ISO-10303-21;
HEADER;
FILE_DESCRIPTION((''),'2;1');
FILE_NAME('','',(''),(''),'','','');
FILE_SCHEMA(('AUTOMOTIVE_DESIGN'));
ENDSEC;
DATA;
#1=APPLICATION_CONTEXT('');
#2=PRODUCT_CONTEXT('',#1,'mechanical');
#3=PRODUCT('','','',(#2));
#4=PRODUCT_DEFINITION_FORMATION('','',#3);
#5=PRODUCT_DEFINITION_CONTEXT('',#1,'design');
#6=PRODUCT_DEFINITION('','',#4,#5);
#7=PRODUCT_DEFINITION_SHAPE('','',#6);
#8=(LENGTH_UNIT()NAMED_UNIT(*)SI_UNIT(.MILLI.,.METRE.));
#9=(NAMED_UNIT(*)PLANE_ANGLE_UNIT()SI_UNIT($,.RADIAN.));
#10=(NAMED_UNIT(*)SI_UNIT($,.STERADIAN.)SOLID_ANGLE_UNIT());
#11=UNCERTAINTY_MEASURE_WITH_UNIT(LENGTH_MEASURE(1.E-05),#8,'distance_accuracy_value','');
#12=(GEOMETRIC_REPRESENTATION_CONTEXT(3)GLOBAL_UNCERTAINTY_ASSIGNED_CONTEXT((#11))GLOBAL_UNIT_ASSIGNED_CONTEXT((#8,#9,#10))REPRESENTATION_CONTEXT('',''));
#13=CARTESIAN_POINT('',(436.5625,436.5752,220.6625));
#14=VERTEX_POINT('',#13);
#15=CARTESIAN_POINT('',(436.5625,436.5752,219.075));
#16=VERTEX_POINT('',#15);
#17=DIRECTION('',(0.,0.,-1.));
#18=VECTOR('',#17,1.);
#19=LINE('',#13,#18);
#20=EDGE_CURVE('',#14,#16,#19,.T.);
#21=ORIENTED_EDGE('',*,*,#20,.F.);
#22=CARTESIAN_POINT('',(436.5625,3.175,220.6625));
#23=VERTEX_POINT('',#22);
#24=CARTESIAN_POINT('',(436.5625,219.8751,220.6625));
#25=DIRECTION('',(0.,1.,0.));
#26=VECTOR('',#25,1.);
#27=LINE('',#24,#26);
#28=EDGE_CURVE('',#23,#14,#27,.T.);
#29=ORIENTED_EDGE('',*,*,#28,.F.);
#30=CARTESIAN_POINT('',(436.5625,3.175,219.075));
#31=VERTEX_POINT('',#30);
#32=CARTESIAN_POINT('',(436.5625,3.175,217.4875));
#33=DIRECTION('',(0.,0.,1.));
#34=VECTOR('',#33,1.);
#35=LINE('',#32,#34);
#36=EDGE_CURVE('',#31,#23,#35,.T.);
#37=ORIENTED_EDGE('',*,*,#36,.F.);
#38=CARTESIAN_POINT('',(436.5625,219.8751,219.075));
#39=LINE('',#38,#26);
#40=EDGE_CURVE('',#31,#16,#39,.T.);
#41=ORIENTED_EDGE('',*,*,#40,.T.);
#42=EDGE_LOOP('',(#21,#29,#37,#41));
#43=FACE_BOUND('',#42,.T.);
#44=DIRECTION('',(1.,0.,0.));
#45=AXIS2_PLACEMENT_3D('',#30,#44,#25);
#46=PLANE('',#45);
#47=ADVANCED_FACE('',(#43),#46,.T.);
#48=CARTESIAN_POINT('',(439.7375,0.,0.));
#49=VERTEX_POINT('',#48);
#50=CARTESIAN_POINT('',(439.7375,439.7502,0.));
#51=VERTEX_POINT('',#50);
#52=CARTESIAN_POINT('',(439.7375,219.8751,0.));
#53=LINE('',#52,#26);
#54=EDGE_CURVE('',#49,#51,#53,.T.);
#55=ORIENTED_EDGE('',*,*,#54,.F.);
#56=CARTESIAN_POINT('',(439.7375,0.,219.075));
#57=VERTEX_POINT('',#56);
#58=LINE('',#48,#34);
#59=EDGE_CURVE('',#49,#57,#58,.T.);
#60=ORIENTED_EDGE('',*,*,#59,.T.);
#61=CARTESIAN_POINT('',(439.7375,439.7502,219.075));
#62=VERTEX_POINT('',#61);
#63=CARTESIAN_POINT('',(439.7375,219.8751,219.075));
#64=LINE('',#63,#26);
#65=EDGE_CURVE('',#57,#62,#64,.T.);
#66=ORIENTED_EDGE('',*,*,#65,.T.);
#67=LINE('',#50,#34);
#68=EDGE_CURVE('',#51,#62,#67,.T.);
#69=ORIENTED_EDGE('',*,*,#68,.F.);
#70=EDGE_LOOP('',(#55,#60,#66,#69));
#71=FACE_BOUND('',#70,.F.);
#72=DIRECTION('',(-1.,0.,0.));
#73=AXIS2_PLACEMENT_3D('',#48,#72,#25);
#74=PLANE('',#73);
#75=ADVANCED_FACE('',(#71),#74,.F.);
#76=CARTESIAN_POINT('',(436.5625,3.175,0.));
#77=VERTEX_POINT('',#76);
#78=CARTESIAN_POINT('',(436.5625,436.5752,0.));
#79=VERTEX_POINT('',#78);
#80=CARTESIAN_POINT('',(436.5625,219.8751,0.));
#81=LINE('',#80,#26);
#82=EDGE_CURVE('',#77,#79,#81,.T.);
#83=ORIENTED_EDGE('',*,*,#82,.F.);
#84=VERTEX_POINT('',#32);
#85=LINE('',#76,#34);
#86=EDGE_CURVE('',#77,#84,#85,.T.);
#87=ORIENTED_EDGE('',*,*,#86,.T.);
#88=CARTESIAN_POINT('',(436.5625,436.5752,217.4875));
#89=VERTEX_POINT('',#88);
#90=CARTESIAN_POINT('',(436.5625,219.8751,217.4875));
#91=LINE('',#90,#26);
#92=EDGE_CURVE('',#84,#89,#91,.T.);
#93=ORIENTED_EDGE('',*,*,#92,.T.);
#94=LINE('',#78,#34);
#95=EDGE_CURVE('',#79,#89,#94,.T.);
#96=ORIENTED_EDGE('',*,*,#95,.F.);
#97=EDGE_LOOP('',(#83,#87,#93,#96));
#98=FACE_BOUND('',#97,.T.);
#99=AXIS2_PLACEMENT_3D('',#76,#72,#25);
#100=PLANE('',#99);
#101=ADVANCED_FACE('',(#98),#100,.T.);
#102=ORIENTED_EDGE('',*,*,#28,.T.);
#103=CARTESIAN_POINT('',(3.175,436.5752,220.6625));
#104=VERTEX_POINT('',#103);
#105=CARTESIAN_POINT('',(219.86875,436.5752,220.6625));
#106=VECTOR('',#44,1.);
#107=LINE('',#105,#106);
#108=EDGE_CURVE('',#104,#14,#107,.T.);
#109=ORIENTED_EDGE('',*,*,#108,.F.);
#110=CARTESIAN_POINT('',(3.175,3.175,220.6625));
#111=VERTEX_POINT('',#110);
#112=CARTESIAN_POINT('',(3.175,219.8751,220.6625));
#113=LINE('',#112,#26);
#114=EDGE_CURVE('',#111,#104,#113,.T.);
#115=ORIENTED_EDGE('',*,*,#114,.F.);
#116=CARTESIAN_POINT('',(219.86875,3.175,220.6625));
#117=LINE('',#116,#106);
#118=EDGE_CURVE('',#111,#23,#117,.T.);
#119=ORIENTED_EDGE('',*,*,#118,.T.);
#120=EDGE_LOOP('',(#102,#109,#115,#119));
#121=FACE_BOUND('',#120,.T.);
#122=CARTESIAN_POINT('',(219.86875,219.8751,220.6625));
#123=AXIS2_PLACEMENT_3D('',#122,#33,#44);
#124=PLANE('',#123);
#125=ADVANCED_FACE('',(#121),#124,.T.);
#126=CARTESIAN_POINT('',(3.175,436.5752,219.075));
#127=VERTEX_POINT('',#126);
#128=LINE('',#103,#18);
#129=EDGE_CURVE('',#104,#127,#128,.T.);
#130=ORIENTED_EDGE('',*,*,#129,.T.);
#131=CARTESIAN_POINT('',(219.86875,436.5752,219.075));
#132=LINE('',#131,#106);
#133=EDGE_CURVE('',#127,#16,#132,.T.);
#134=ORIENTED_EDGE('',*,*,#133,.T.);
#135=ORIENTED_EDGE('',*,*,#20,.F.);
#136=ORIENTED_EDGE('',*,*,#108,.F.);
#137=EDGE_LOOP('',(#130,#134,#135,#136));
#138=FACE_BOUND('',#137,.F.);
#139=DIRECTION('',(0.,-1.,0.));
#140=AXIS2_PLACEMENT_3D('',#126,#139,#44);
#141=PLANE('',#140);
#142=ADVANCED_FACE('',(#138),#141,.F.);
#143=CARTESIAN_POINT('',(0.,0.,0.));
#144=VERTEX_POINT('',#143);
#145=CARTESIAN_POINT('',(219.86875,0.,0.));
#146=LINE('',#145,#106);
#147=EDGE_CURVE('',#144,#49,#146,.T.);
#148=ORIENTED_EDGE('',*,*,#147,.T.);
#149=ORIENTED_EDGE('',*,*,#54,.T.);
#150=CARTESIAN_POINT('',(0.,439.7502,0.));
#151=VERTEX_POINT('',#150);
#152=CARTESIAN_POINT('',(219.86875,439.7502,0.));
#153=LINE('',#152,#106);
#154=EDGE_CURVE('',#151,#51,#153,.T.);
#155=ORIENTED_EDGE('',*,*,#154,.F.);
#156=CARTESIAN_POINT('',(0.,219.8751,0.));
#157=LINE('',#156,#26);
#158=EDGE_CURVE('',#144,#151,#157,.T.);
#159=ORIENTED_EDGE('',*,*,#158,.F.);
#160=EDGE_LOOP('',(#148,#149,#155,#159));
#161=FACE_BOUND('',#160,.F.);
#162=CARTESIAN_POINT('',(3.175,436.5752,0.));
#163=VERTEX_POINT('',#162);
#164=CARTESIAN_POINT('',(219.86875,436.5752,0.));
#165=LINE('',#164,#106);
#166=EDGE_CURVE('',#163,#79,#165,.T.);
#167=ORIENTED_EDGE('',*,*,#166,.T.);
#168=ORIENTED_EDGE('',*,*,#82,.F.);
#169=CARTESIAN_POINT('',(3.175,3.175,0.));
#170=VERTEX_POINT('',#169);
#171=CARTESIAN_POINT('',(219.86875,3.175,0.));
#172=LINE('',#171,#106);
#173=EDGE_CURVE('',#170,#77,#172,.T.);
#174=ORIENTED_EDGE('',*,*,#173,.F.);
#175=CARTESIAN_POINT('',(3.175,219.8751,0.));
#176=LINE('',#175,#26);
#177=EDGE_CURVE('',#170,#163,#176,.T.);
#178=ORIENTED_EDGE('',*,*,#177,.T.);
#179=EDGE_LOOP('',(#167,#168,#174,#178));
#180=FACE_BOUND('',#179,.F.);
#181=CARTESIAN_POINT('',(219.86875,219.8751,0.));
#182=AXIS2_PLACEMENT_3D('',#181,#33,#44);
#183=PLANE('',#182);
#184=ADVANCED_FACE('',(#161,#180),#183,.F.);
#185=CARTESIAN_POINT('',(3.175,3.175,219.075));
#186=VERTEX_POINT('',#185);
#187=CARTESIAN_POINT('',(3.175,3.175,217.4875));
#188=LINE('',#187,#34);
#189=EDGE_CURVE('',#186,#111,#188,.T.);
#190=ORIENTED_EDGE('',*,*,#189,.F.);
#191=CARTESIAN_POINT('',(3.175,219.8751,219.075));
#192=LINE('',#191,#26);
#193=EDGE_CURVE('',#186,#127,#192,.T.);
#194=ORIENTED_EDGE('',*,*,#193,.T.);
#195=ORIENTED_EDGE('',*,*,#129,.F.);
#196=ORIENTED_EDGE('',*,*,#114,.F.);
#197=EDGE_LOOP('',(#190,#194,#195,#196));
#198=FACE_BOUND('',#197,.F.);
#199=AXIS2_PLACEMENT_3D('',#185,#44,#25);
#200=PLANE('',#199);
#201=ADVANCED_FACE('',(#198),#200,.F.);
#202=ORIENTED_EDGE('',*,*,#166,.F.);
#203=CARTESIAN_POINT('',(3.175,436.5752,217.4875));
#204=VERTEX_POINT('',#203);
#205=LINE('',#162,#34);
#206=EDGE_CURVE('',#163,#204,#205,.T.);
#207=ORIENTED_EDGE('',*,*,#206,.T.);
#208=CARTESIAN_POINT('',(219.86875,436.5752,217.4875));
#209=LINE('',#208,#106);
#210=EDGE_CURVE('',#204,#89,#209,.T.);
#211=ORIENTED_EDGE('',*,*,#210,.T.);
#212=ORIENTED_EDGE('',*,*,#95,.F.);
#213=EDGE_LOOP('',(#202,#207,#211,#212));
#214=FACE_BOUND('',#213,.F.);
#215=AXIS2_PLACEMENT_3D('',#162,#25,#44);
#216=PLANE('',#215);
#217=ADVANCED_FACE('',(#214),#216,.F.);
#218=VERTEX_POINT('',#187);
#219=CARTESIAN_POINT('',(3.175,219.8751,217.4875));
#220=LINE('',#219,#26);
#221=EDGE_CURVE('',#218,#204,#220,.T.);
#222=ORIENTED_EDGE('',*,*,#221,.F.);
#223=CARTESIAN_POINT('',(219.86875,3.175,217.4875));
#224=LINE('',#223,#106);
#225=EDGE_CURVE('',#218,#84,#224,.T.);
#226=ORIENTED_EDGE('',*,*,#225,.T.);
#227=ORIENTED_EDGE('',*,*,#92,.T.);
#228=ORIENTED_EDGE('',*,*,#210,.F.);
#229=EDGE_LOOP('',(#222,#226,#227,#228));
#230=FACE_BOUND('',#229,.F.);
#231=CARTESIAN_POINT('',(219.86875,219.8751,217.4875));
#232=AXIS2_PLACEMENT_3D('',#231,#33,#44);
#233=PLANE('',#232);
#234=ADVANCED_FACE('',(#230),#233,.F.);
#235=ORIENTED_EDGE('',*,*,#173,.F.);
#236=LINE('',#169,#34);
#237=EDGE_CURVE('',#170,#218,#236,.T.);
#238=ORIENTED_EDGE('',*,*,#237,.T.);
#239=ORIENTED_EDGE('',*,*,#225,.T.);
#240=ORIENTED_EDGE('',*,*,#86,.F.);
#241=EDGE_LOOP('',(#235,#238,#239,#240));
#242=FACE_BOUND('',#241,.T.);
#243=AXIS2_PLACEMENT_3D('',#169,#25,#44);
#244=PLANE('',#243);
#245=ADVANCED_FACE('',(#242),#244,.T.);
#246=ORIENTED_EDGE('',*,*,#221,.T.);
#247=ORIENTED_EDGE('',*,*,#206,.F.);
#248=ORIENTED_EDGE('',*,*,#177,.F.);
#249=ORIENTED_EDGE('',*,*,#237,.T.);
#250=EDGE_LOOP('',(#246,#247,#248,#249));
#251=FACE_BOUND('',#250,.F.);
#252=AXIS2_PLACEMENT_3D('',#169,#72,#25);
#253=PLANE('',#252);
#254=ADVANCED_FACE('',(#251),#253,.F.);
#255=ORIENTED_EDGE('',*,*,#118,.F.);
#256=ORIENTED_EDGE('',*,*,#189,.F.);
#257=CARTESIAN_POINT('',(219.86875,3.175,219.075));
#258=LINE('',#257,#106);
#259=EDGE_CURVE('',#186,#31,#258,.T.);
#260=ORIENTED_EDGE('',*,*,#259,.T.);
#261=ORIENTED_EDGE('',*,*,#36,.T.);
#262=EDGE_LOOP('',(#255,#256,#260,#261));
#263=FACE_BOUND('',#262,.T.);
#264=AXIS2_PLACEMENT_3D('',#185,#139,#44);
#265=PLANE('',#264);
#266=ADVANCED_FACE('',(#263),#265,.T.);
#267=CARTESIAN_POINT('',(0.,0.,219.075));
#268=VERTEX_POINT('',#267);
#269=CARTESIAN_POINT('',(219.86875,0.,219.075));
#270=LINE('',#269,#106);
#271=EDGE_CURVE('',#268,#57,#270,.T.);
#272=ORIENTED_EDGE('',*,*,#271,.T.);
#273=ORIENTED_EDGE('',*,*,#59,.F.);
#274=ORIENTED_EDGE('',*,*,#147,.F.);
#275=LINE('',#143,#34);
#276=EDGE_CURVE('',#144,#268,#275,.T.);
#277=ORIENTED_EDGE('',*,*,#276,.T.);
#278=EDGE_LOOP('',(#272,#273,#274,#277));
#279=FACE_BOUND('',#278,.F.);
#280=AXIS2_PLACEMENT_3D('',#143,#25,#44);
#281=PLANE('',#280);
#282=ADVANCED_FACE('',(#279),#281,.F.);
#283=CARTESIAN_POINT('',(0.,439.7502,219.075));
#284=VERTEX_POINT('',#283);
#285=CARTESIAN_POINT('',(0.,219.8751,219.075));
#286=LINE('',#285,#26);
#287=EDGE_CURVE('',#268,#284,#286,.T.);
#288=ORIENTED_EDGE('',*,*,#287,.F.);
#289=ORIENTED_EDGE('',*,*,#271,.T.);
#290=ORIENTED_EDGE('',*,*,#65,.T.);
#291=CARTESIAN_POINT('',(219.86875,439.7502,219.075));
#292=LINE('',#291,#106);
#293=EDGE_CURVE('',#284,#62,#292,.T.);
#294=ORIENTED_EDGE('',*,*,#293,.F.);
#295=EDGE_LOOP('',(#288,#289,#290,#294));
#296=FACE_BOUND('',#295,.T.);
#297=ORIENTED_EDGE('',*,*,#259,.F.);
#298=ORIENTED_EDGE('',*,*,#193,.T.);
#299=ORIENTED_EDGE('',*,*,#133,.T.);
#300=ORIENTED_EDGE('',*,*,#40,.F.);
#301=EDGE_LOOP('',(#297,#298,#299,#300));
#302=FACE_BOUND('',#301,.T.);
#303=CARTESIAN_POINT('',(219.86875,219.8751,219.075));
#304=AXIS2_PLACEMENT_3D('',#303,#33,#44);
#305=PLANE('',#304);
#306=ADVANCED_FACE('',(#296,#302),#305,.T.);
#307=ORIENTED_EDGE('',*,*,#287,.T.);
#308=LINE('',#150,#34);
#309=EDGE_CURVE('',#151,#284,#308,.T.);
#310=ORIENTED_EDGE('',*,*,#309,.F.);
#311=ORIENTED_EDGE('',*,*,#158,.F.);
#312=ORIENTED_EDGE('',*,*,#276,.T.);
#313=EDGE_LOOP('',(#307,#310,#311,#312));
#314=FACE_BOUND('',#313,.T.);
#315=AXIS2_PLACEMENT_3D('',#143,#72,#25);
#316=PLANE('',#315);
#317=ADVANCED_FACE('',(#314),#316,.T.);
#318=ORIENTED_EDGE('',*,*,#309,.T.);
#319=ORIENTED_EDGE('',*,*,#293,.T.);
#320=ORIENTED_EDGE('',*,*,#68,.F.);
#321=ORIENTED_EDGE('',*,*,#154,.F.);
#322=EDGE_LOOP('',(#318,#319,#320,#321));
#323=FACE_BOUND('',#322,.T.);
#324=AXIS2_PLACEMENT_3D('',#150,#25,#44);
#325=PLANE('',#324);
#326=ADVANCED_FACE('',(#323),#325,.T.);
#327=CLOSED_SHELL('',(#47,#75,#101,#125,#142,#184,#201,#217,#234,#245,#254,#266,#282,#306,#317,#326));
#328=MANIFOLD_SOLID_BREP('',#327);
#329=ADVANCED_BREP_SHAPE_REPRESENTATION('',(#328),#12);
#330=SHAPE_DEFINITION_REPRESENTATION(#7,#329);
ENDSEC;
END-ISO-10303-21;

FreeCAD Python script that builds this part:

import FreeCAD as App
import Part
import Sketcher
Q = App.Units.Quantity


def add_polygon(sketch, points):
    """Adds a closed chain of lines whose ends are joined by coincident constraints."""
    first, n = sketch.GeometryCount, len(points)
    for a, b in zip(points, points[1:] + points[:1]):
        sketch.addGeometry(Part.LineSegment(App.Vector(*a, 0), App.Vector(*b, 0)), False)
    for i in range(n):
        sketch.addConstraint(Sketcher.Constraint("Coincident", first + i, 2, first + (i + 1) % n, 1))

doc = App.newDocument("Part")
body = doc.addObject("PartDesign::Body", "Body")

# Sketch on XY plane
sketch1 = body.newObject("Sketcher::SketchObject", "Sketch")
sketch1.AttachmentSupport = (doc.getObject("XY_Plane"), [""])
sketch1.MapMode = "FlatFace"
add_polygon(sketch1, [(0, 440), (0, 0), (440, 0), (440, 440)])  # lines 0-3
add_polygon(sketch1, [(437, 3), (3, 3), (3, 437), (437, 437)])  # lines 4-7
sketch1.addConstraint([
    Sketcher.Constraint("Vertical", 0),
    Sketcher.Constraint("Horizontal", 1),
    Sketcher.Constraint("Vertical", 2),
    Sketcher.Constraint("Horizontal", 3),
    Sketcher.Constraint("Horizontal", 4),
    Sketcher.Constraint("Vertical", 5),
    Sketcher.Constraint("Horizontal", 6),
    Sketcher.Constraint("Vertical", 7),
    Sketcher.Constraint("Coincident", 0, 2, -1, 1),
    Sketcher.Constraint("DistanceX", 1, 1, 1, 2, Q("17.3125 in")),
    Sketcher.Constraint("DistanceX", 4, 2, 4, 1, Q("17.0625 in")),
    Sketcher.Constraint("DistanceY", 0, 2, 0, 1, Q("17.313 in")),
    Sketcher.Constraint("DistanceY", 5, 1, 5, 2, Q("17.063 in")),
    Sketcher.Constraint("DistanceX", -1, 1, 4, 2, Q("0.125 in")),
    Sketcher.Constraint("DistanceY", -1, 1, 4, 2, Q("0.125 in")),
])
pad1 = body.newObject("PartDesign::Pad", "Pad")
pad1.Profile = sketch1
pad1.Length = Q("8.625 in")

# Sketch on XY plane
sketch2 = body.newObject("Sketcher::SketchObject", "Sketch001")
sketch2.AttachmentSupport = (doc.getObject("XY_Plane"), [""])
sketch2.MapMode = "FlatFace"
sketch2.AttachmentOffset = App.Placement(App.Vector(0, 0, 8.625 * 25.4), App.Rotation())
add_polygon(sketch2, [(3, 437), (3, 3), (437, 3), (437, 437)])  # lines 0-3
sketch2.addConstraint([
    Sketcher.Constraint("Vertical", 0),
    Sketcher.Constraint("Horizontal", 1),
    Sketcher.Constraint("Vertical", 2),
    Sketcher.Constraint("Horizontal", 3),
    Sketcher.Constraint("DistanceX", 1, 1, 1, 2, Q("17.0625 in")),
    Sketcher.Constraint("DistanceY", 0, 2, 0, 1, Q("17.063 in")),
    Sketcher.Constraint("DistanceX", -1, 1, 0, 2, Q("0.125 in")),
    Sketcher.Constraint("DistanceY", -1, 1, 0, 2, Q("0.125 in")),
])
pad2 = body.newObject("PartDesign::Pad", "Pad001")
pad2.Profile = sketch2
pad2.Length = Q("0.125 in")
pad2.Midplane = True

doc.recompute()
